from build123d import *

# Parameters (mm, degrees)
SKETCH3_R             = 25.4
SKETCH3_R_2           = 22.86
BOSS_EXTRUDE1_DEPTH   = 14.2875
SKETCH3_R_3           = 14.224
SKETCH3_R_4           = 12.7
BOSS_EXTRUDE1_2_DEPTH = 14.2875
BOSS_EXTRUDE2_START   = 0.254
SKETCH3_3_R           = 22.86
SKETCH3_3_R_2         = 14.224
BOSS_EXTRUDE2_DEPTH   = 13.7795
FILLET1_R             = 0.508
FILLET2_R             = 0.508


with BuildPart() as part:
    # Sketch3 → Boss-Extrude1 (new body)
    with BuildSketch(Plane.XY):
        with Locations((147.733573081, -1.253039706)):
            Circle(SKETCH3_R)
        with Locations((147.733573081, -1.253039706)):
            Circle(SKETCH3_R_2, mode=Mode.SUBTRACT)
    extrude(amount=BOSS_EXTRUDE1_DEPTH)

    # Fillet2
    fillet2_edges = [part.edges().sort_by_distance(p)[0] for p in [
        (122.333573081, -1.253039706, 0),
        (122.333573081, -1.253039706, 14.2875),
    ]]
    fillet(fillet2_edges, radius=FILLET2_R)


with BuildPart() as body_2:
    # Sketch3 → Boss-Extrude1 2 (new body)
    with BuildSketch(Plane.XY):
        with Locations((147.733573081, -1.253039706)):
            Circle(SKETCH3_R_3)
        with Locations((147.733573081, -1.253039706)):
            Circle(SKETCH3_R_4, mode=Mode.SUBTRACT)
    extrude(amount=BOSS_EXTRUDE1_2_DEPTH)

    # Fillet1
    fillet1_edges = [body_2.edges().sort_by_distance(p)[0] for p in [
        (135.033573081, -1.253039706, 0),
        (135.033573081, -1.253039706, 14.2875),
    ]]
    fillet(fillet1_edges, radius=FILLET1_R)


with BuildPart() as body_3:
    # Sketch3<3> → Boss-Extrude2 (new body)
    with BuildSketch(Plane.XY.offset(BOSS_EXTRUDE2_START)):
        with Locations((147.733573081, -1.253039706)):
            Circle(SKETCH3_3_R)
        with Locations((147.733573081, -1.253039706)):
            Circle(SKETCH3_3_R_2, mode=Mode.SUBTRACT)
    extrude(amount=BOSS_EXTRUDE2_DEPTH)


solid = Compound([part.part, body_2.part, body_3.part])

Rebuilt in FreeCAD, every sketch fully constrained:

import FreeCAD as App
import Part
import Sketcher

V = App.Vector
Q = App.Units.Quantity


def edges_at(feature, points):
    """Names of the edges that pass closest to the given points."""
    edges = feature.Shape.Edges
    near = lambda p: min(range(len(edges)), key=lambda i: edges[i].distToShape(Part.Vertex(*p))[0])
    return sorted({f"Edge{near(p) + 1}" for p in points})

doc = App.newDocument("Part")
body = doc.addObject("PartDesign::Body", "Body")

sketch1 = body.newObject("Sketcher::SketchObject", "Sketch")
sketch1.AttachmentSupport = (doc.getObject("XY_Plane"), [""])
sketch1.MapMode = "FlatFace"
sketch1.addGeometry([
    Part.Circle(V(147.733573, -1.25304, 0), V(0, 0, 1), 25.4),
    Part.Circle(V(147.733573, -1.25304, 0), V(0, 0, 1), 22.86),
], False)
sketch1.addConstraint([
    Sketcher.Constraint("Coincident", 1, 3, 0, 3),
    Sketcher.Constraint("Diameter", 0, Q("2 in")),
    Sketcher.Constraint("Diameter", 1, Q("1.8 in")),
    Sketcher.Constraint("DistanceY", 0, 3, -1, 1, Q("1.25304 mm")),
    Sketcher.Constraint("DistanceX", -1, 1, 0, 3, Q("147.733573 mm")),
])
pad1 = body.newObject("PartDesign::Pad", "Pad")
pad1.Profile = sketch1
pad1.Length = Q("0.5625 in")
doc.recompute()

fillet = body.newObject("PartDesign::Fillet", "Fillet")
fillet.Base = (pad1, edges_at(pad1, [(122.334, -1.253, 0), (122.334, -1.253, 14.287)]))
fillet.Radius = Q("0.02 in")
body2 = doc.addObject("PartDesign::Body", "Body001")

sketch2 = body2.newObject("Sketcher::SketchObject", "Sketch001")
sketch2.AttachmentSupport = (doc.getObject("XY_Plane001"), [""])
sketch2.MapMode = "FlatFace"
sketch2.addGeometry([
    Part.Circle(V(147.733573, -1.25304, 0), V(0, 0, 1), 14.224),
    Part.Circle(V(147.733573, -1.25304, 0), V(0, 0, 1), 12.7),
], False)
sketch2.addConstraint([
    Sketcher.Constraint("Coincident", 1, 3, 0, 3),
    Sketcher.Constraint("Diameter", 1, Q("1 in")),
    Sketcher.Constraint("Diameter", 0, Q("1.12 in")),
    Sketcher.Constraint("DistanceY", 0, 3, -1, 1, Q("1.25304 mm")),
    Sketcher.Constraint("DistanceX", -1, 1, 0, 3, Q("147.733573 mm")),
])
pad2 = body2.newObject("PartDesign::Pad", "Pad001")
pad2.Profile = sketch2
pad2.Length = Q("0.5625 in")
doc.recompute()

fillet2 = body2.newObject("PartDesign::Fillet", "Fillet001")
fillet2.Base = (pad2, edges_at(pad2, [(135.034, -1.253, 0), (135.034, -1.253, 14.287)]))
fillet2.Radius = Q("0.02 in")
body3 = doc.addObject("PartDesign::Body", "Body002")

sketch3 = body3.newObject("Sketcher::SketchObject", "Sketch002")
sketch3.AttachmentSupport = (doc.getObject("XY_Plane002"), [""])
sketch3.MapMode = "FlatFace"
sketch3.AttachmentOffset = App.Placement(V(0, 0, 0.01 * 25.4), App.Rotation())
sketch3.addGeometry([
    Part.Circle(V(147.733573, -1.25304, 0), V(0, 0, 1), 22.86),
    Part.Circle(V(147.733573, -1.25304, 0), V(0, 0, 1), 14.224),
], False)
sketch3.addConstraint([
    Sketcher.Constraint("Coincident", 1, 3, 0, 3),
    Sketcher.Constraint("Diameter", 0, Q("1.8 in")),
    Sketcher.Constraint("Diameter", 1, Q("1.12 in")),
    Sketcher.Constraint("DistanceY", 0, 3, -1, 1, Q("1.25304 mm")),
    Sketcher.Constraint("DistanceX", -1, 1, 0, 3, Q("147.733573 mm")),
])
pad3 = body3.newObject("PartDesign::Pad", "Pad002")
pad3.Profile = sketch3
pad3.Length = Q("0.5425 in")

doc.recompute()
